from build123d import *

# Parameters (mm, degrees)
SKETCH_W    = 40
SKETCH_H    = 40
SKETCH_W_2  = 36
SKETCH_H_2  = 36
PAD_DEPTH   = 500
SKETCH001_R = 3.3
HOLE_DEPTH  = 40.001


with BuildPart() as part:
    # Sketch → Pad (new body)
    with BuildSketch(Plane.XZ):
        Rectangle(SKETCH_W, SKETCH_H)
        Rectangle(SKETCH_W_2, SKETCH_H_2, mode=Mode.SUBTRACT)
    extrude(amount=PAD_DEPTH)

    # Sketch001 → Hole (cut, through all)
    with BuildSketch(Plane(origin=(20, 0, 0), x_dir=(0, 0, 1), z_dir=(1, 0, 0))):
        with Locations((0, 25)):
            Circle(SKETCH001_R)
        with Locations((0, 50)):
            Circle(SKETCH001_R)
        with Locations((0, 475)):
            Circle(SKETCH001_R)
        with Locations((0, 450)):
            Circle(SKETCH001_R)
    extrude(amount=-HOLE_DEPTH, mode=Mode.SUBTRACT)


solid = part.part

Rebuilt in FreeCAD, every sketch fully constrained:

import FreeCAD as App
import Part
import Sketcher

V = App.Vector
Q = App.Units.Quantity

doc = App.newDocument("Part")
body = doc.addObject("PartDesign::Body", "Body")

# Sketch on XZ plane
sketch1 = body.newObject("Sketcher::SketchObject", "Sketch")
sketch1.AttachmentSupport = (doc.getObject("XZ_Plane"), [""])
sketch1.MapMode = "FlatFace"
sketch1.addGeometry(Part.LineSegment(V(-20, 20, 0), V(-20, -20, 0)), False)
sketch1.addGeometry(Part.LineSegment(V(-20, -20, 0), V(20, -20, 0)), False)
sketch1.addGeometry(Part.LineSegment(V(20, -20, 0), V(20, 20, 0)), False)
sketch1.addGeometry(Part.LineSegment(V(20, 20, 0), V(-20, 20, 0)), False)
sketch1.addGeometry(Part.LineSegment(V(18, -18, 0), V(-18, -18, 0)), False)
sketch1.addGeometry(Part.LineSegment(V(-18, -18, 0), V(-18, 18, 0)), False)
sketch1.addGeometry(Part.LineSegment(V(-18, 18, 0), V(18, 18, 0)), False)
sketch1.addGeometry(Part.LineSegment(V(18, 18, 0), V(18, -18, 0)), False)
sketch1.addConstraint(Sketcher.Constraint("Coincident", 0, 2, 1, 1))
sketch1.addConstraint(Sketcher.Constraint("Coincident", 1, 2, 2, 1))
sketch1.addConstraint(Sketcher.Constraint("Coincident", 2, 2, 3, 1))
sketch1.addConstraint(Sketcher.Constraint("Coincident", 3, 2, 0, 1))
sketch1.addConstraint(Sketcher.Constraint("Coincident", 4, 2, 5, 1))
sketch1.addConstraint(Sketcher.Constraint("Coincident", 5, 2, 6, 1))
sketch1.addConstraint(Sketcher.Constraint("Coincident", 6, 2, 7, 1))
sketch1.addConstraint(Sketcher.Constraint("Coincident", 7, 2, 4, 1))
sketch1.addConstraint(Sketcher.Constraint("Vertical", 0))
sketch1.addConstraint(Sketcher.Constraint("Horizontal", 1))
sketch1.addConstraint(Sketcher.Constraint("Vertical", 2))
sketch1.addConstraint(Sketcher.Constraint("Horizontal", 3))
sketch1.addConstraint(Sketcher.Constraint("Horizontal", 4))
sketch1.addConstraint(Sketcher.Constraint("Vertical", 5))
sketch1.addConstraint(Sketcher.Constraint("Horizontal", 6))
sketch1.addConstraint(Sketcher.Constraint("Vertical", 7))
sketch1.addConstraint(Sketcher.Constraint("Symmetric", 0, 2, 2, 2, -1, 1))
sketch1.addConstraint(Sketcher.Constraint("Symmetric", 4, 2, 6, 2, -1, 1))
sketch1.addConstraint(Sketcher.Constraint("Equal", 3, 0))
sketch1.addConstraint(Sketcher.Constraint("Equal", 6, 5))
sketch1.addConstraint(Sketcher.Constraint("DistanceX", 1, 1, 1, 2, Q("40 mm")))
sketch1.addConstraint(Sketcher.Constraint("DistanceX", 4, 2, 4, 1, Q("36 mm")))
pad1 = body.newObject("PartDesign::Pad", "Pad")
pad1.Profile = sketch1
pad1.Length = 500

# Sketch on YZ plane
sketch2 = body.newObject("Sketcher::SketchObject", "Sketch001")
sketch2.AttachmentSupport = (doc.getObject("YZ_Plane"), [""])
sketch2.MapMode = "FlatFace"
sketch2.AttachmentOffset = App.Placement(V(0, 0, 20), App.Rotation())
sketch2.addGeometry(Part.Circle(V(-25, 0, 0), V(0, 0, 1), 3.3), False)
sketch2.addGeometry(Part.Circle(V(-50, 0, 0), V(0, 0, 1), 3.3), False)
sketch2.addGeometry(Part.Circle(V(-475, 0, 0), V(0, 0, 1), 3.3), False)
sketch2.addGeometry(Part.Circle(V(-450, 0, 0), V(0, 0, 1), 3.3), False)
sketch2.addConstraint(Sketcher.Constraint("Equal", 0, 1))
sketch2.addConstraint(Sketcher.Constraint("Equal", 1, 2))
sketch2.addConstraint(Sketcher.Constraint("Equal", 2, 3))
sketch2.addConstraint(Sketcher.Constraint("PointOnObject", 0, 3, -1))
sketch2.addConstraint(Sketcher.Constraint("PointOnObject", 1, 3, -1))
sketch2.addConstraint(Sketcher.Constraint("PointOnObject", 2, 3, -1))
sketch2.addConstraint(Sketcher.Constraint("PointOnObject", 3, 3, -1))
sketch2.addConstraint(Sketcher.Constraint("Diameter", 0, Q("6.6 mm")))
sketch2.addConstraint(Sketcher.Constraint("DistanceX", 0, 3, -1, 1, Q("25 mm")))
sketch2.addConstraint(Sketcher.Constraint("DistanceX", 1, 3, -1, 1, Q("50 mm")))
sketch2.addConstraint(Sketcher.Constraint("DistanceX", 2, 3, -1, 1, Q("475 mm")))
sketch2.addConstraint(Sketcher.Constraint("DistanceX", 3, 3, -1, 1, Q("450 mm")))
pocket1 = body.newObject("PartDesign::Pocket", "Pocket")
pocket1.Profile = sketch2
pocket1.Type = "ThroughAll"

doc.recompute()
